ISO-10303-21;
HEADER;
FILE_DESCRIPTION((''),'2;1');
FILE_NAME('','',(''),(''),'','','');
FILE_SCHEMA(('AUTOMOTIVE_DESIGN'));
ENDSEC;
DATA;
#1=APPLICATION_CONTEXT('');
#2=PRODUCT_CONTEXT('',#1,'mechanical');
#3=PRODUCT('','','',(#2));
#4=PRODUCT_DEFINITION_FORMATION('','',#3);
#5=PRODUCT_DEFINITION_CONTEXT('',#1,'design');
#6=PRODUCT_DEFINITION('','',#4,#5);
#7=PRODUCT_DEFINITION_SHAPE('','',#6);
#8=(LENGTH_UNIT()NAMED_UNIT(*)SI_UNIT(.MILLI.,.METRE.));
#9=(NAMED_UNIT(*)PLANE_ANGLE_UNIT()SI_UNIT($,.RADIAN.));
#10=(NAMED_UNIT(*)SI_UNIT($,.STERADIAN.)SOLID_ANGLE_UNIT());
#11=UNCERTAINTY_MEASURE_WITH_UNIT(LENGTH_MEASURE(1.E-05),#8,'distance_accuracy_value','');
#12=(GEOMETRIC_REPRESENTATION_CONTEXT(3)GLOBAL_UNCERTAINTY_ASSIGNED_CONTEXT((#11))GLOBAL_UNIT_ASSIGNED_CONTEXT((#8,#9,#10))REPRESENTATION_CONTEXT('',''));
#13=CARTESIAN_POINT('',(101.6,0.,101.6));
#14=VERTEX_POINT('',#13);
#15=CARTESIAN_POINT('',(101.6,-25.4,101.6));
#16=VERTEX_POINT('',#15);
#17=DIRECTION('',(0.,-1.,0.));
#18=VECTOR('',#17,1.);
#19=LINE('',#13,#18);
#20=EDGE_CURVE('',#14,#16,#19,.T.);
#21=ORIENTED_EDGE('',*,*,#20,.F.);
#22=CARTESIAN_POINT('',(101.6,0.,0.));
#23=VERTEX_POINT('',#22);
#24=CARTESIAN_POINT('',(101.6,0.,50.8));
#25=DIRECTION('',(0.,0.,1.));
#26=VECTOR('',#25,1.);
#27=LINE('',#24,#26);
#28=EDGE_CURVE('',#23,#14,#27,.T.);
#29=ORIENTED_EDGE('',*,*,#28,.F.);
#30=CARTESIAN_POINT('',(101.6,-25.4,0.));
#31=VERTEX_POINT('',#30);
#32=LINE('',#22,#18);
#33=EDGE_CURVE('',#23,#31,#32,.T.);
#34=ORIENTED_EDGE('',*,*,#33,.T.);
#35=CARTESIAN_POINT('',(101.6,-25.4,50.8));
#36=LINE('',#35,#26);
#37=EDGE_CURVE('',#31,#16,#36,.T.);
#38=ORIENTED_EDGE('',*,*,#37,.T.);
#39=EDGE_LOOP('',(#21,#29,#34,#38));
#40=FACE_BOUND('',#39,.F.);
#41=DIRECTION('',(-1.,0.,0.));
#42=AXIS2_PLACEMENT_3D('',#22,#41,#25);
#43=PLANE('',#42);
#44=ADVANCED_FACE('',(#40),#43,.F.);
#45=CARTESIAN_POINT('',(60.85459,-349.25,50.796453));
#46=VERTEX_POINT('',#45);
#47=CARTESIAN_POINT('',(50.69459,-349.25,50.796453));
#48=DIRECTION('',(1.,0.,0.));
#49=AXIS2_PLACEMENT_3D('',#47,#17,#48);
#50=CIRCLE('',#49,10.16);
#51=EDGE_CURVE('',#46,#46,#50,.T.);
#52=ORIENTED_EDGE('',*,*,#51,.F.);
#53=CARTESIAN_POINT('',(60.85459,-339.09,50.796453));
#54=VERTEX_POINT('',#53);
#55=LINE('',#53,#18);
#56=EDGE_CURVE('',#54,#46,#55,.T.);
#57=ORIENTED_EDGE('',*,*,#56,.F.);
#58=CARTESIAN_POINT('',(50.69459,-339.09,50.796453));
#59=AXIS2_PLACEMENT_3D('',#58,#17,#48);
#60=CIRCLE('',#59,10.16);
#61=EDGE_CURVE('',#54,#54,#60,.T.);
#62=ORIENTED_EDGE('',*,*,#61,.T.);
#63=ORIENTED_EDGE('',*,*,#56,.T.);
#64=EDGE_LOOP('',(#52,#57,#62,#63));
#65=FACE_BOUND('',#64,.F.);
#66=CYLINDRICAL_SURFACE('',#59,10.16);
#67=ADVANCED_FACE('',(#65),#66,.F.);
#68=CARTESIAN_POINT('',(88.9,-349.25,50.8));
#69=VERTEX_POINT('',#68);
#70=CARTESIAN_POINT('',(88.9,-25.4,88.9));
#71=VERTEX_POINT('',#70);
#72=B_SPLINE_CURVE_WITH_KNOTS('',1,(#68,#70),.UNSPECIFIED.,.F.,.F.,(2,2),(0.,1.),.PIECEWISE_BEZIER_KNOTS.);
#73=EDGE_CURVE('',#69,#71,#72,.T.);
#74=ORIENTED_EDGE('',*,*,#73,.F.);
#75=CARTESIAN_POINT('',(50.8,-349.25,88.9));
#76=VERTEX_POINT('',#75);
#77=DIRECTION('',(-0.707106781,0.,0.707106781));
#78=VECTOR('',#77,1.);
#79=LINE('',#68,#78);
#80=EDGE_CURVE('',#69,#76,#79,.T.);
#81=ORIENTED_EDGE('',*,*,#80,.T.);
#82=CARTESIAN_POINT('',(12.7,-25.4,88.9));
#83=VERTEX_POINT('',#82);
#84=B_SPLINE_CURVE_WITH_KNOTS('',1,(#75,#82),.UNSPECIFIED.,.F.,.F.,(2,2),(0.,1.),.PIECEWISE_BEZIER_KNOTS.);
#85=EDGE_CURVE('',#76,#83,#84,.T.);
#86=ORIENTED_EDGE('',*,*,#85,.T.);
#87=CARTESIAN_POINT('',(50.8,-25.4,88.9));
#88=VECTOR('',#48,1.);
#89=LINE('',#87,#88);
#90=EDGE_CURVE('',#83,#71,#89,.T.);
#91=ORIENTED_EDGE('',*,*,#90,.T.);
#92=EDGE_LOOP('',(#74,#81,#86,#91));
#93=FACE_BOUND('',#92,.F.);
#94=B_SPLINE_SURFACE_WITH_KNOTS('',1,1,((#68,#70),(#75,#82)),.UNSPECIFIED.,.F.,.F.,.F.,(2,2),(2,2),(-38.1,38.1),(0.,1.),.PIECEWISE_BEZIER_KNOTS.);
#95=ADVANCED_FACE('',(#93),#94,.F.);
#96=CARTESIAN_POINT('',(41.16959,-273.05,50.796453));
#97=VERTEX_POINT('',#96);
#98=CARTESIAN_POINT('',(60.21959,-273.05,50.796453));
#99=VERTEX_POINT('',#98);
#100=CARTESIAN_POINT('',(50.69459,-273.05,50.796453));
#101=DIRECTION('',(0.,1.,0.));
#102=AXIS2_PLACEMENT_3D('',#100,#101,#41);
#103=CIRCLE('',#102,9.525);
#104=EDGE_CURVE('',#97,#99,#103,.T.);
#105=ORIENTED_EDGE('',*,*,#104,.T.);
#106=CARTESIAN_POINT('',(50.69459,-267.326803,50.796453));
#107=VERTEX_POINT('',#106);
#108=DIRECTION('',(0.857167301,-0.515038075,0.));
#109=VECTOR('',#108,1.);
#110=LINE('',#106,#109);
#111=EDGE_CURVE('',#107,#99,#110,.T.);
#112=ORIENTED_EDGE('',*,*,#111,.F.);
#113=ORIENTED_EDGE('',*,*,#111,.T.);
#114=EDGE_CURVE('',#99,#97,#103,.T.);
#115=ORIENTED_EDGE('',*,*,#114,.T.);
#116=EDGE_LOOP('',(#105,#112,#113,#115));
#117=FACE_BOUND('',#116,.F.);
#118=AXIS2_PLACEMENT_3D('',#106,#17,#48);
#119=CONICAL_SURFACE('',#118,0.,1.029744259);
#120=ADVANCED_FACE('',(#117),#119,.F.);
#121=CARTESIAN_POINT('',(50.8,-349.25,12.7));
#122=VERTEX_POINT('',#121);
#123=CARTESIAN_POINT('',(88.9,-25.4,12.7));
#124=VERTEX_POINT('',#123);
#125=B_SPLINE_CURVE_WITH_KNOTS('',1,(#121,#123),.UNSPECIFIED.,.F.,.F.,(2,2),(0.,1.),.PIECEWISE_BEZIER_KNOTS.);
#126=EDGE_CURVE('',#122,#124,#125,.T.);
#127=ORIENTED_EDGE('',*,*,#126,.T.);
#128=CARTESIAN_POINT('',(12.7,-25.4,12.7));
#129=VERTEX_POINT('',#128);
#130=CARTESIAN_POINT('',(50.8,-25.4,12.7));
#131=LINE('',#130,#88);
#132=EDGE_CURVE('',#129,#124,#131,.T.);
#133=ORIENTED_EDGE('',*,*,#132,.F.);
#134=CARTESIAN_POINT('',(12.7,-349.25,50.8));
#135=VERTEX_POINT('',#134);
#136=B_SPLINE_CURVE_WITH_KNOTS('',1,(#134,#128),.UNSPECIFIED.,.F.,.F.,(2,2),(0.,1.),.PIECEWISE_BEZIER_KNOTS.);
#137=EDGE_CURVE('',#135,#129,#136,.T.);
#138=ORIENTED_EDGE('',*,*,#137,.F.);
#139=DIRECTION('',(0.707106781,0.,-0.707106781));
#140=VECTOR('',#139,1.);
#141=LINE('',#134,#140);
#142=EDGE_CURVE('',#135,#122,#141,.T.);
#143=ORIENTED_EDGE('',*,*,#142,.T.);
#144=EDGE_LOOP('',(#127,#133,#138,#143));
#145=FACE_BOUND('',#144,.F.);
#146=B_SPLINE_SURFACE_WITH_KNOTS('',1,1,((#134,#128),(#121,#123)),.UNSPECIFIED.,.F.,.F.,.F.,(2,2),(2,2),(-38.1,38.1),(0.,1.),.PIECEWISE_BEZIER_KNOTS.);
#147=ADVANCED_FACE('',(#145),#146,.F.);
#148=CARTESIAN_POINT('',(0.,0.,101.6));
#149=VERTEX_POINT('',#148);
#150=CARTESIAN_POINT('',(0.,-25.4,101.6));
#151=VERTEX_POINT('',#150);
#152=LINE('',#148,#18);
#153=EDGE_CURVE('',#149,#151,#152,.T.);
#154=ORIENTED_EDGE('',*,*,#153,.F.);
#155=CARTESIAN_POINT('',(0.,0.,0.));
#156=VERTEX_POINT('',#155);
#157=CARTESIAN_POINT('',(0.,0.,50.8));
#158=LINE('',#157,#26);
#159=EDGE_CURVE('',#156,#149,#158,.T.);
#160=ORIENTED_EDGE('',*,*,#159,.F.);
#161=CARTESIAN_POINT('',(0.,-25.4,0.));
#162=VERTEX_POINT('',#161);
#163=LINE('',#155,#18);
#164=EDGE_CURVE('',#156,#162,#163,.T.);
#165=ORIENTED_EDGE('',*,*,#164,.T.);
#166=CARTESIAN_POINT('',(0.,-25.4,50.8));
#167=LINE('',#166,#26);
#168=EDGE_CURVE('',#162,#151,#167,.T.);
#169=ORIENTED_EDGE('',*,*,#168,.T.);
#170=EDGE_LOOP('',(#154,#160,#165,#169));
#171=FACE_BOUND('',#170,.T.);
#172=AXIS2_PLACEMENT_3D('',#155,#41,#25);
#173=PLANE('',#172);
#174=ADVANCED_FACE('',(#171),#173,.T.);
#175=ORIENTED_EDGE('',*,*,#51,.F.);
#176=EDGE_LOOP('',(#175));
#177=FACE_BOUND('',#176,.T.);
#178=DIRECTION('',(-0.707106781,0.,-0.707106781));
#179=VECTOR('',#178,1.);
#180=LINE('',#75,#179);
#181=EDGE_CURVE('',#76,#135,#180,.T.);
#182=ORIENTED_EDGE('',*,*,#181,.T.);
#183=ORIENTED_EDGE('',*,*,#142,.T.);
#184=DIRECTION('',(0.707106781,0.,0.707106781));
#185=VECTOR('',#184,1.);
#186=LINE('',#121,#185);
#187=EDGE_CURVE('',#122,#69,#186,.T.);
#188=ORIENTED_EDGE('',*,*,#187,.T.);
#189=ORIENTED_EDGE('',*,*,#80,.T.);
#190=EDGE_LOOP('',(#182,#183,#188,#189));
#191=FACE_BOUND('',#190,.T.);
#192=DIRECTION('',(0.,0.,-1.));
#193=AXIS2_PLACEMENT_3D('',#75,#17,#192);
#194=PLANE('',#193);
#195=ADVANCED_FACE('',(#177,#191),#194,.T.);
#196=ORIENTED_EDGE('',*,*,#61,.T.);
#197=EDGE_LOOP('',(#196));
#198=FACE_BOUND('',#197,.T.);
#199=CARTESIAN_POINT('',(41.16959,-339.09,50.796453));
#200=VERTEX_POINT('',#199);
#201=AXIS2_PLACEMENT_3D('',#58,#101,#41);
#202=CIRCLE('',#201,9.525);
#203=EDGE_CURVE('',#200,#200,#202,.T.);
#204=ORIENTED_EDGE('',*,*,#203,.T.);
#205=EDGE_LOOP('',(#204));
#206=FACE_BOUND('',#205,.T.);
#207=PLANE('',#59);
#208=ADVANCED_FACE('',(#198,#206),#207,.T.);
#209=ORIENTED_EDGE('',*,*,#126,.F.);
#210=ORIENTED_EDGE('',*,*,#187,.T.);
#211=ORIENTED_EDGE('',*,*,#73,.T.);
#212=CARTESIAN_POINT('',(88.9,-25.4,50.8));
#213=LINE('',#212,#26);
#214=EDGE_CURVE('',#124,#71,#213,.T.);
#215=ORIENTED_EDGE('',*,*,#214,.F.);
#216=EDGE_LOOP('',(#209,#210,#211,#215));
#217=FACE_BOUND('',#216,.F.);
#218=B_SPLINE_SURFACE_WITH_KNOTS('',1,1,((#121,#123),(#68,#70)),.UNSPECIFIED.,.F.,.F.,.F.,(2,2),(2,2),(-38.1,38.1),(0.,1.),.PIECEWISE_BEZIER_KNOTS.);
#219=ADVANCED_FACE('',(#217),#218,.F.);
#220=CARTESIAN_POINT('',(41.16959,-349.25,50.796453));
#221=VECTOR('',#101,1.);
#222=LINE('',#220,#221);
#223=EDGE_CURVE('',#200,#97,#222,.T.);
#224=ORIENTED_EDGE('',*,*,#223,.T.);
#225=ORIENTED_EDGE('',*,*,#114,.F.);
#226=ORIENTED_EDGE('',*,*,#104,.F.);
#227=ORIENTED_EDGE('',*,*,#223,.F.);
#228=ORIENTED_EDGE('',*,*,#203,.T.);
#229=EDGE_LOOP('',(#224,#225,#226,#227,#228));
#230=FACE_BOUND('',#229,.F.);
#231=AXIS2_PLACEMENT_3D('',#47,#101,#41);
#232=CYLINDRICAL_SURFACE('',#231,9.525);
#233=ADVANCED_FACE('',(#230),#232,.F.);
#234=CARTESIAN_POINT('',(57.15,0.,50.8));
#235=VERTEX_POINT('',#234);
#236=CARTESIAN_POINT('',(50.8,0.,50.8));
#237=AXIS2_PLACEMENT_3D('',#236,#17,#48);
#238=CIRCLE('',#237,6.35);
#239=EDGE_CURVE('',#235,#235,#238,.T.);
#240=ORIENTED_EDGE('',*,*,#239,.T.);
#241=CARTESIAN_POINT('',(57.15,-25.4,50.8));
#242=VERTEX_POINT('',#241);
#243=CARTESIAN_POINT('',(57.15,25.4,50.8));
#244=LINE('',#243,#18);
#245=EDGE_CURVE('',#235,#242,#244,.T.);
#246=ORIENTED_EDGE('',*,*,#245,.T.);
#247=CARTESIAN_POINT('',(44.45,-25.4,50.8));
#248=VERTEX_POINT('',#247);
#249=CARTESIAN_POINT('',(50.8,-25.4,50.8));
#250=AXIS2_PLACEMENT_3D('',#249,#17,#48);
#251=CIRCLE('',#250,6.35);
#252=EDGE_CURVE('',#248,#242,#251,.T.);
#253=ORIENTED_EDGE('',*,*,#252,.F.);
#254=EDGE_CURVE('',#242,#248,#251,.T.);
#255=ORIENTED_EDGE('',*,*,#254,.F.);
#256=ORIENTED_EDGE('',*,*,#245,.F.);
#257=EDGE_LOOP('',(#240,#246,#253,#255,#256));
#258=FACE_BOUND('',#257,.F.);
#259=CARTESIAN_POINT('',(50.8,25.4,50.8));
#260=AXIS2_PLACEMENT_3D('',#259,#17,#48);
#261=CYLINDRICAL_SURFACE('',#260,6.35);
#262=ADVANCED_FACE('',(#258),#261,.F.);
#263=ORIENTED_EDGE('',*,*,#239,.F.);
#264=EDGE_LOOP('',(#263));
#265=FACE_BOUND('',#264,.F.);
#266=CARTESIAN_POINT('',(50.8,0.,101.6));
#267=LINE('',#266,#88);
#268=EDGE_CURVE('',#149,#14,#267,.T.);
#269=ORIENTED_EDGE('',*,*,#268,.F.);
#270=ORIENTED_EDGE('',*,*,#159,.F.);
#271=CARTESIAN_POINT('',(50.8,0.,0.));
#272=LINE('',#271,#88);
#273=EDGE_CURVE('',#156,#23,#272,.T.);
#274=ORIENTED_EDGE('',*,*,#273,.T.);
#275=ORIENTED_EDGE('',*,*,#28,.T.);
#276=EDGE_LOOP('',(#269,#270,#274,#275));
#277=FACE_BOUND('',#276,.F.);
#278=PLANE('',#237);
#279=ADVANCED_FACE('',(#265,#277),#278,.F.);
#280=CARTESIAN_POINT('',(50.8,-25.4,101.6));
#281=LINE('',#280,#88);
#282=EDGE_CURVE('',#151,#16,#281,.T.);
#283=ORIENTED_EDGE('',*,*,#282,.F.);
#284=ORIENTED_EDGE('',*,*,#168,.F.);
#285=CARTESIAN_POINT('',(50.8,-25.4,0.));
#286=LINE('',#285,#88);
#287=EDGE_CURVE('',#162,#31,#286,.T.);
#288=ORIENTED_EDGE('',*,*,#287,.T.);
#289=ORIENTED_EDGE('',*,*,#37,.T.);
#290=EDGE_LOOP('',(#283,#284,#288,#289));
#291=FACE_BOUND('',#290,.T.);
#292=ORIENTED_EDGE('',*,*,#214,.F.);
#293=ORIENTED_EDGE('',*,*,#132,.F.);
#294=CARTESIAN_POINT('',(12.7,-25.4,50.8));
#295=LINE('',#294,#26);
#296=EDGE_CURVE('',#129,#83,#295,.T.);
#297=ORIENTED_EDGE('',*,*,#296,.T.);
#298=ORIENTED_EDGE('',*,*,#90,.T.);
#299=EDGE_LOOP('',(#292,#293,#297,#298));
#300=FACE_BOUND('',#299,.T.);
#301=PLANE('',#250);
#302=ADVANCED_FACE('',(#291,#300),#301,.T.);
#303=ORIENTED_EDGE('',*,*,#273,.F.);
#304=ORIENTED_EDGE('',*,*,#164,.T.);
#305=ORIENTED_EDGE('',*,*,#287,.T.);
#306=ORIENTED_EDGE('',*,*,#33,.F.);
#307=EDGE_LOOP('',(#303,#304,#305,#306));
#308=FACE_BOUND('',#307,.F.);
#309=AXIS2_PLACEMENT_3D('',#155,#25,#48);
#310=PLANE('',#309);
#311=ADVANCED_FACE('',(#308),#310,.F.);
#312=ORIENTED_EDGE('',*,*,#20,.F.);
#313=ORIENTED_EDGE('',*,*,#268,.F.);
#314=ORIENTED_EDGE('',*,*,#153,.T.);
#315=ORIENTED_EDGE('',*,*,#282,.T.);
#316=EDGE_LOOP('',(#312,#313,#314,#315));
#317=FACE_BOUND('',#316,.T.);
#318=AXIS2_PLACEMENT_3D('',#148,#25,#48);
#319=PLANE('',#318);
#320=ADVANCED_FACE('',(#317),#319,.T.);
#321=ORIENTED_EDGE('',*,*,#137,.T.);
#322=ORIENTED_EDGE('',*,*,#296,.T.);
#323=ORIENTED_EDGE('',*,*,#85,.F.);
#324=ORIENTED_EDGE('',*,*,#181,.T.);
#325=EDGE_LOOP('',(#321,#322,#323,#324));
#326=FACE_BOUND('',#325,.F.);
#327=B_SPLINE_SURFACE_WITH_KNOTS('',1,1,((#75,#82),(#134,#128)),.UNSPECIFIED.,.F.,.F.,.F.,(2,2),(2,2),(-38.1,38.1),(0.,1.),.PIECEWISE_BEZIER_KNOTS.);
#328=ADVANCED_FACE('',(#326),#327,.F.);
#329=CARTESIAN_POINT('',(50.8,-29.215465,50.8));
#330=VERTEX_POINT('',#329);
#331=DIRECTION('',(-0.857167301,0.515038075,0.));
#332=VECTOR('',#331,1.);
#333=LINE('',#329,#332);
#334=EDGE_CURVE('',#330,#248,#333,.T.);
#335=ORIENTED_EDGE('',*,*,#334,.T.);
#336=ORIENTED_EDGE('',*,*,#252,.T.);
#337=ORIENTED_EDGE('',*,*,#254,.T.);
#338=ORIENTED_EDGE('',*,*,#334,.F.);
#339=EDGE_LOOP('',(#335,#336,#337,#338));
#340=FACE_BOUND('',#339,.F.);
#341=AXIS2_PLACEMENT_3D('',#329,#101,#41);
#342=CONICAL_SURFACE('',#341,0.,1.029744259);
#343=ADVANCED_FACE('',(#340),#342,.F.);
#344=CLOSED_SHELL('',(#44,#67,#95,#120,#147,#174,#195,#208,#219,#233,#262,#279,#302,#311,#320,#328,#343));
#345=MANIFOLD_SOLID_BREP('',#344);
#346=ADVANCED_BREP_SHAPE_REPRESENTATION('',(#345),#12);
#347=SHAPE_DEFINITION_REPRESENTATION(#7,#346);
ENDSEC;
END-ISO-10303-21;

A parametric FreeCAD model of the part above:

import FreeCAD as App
import Part
import Sketcher

V = App.Vector
Q = App.Units.Quantity


def add_polygon(sketch, points):
    """Adds a closed chain of lines whose ends are joined by coincident constraints."""
    first, n = sketch.GeometryCount, len(points)
    for a, b in zip(points, points[1:] + points[:1]):
        sketch.addGeometry(Part.LineSegment(App.Vector(*a, 0), App.Vector(*b, 0)), False)
    for i in range(n):
        sketch.addConstraint(Sketcher.Constraint("Coincident", first + i, 2, first + (i + 1) % n, 1))

doc = App.newDocument("Part")
body = doc.addObject("PartDesign::Body", "Body")

sketch1 = body.newObject("Sketcher::SketchObject", "Sketch")
sketch1.AttachmentSupport = (doc.getObject("XZ_Plane"), [""])
sketch1.MapMode = "FlatFace"
add_polygon(sketch1, [(0, 102), (0, 0), (102, 0), (102, 102)])
sketch1.addConstraint(Sketcher.Constraint("Vertical", 0))
sketch1.addConstraint(Sketcher.Constraint("Horizontal", 1))
sketch1.addConstraint(Sketcher.Constraint("Vertical", 2))
sketch1.addConstraint(Sketcher.Constraint("Horizontal", 3))
sketch1.addConstraint(Sketcher.Constraint("Coincident", 0, 2, -1, 1))
sketch1.addConstraint(Sketcher.Constraint("Equal", 3, 0))
sketch1.addConstraint(Sketcher.Constraint("DistanceX", 1, 1, 1, 2, Q("4 in")))
pad1 = body.newObject("PartDesign::Pad", "Pad")
pad1.Profile = sketch1
pad1.Length = Q("1 in")

sketch2 = body.newObject("Sketcher::SketchObject", "Sketch001")
sketch2.AttachmentSupport = (doc.getObject("XZ_Plane"), [""])
sketch2.MapMode = "FlatFace"
sketch2.AttachmentOffset = App.Placement(V(0, 0, 13.75 * 25.4), App.Rotation())
add_polygon(sketch2, [(51, 89), (13, 51), (51, 13), (89, 51)])
sketch2.addConstraint(Sketcher.Constraint("Perpendicular", 0, 1))
sketch2.addConstraint(Sketcher.Constraint("Perpendicular", 1, 2))
sketch2.addConstraint(Sketcher.Constraint("Perpendicular", 2, 3))
sketch2.addConstraint(Sketcher.Constraint("Horizontal", 0, 2, 2, 2))
sketch2.addConstraint(Sketcher.Constraint("Vertical", 1, 2, 3, 2))
sketch2.addConstraint(Sketcher.Constraint("DistanceY", -1, 1, 0, 2, Q("2 in")))
sketch2.addConstraint(Sketcher.Constraint("DistanceX", -1, 1, 1, 2, Q("2 in")))
sketch2.addConstraint(Sketcher.Constraint("DistanceX", 0, 2, 2, 2, Q("3 in")))

sketch3 = body.newObject("Sketcher::SketchObject", "Sketch002")
sketch3.AttachmentSupport = (doc.getObject("XZ_Plane"), [""])
sketch3.MapMode = "FlatFace"
sketch3.AttachmentOffset = App.Placement(V(0, 0, 1 * 25.4), App.Rotation())
add_polygon(sketch3, [(13, 89), (13, 13), (89, 13), (89, 89)])
sketch3.addConstraint(Sketcher.Constraint("Vertical", 0))
sketch3.addConstraint(Sketcher.Constraint("Horizontal", 1))
sketch3.addConstraint(Sketcher.Constraint("Vertical", 2))
sketch3.addConstraint(Sketcher.Constraint("Horizontal", 3))
sketch3.addConstraint(Sketcher.Constraint("Equal", 3, 0))
sketch3.addConstraint(Sketcher.Constraint("DistanceX", 1, 1, 1, 2, Q("3 in")))
sketch3.addConstraint(Sketcher.Constraint("DistanceX", -1, 1, 0, 2, Q("0.5 in")))
sketch3.addConstraint(Sketcher.Constraint("DistanceY", -1, 1, 0, 2, Q("0.5 in")))

additiveloft = body.newObject("PartDesign::AdditiveLoft", "AdditiveLoft")
additiveloft.Profile = sketch2
additiveloft.Sections = [sketch3]

sketch4 = body.newObject("Sketcher::SketchObject", "Sketch003")
sketch4.AttachmentSupport = (doc.getObject("XZ_Plane"), [""])
sketch4.MapMode = "FlatFace"
sketch4.addGeometry(Part.Circle(V(51, 51, 0), V(0, 0, 1), 6), False)
sketch4.addConstraint(Sketcher.Constraint("Diameter", 0, Q("0.5 in")))
sketch4.addConstraint(Sketcher.Constraint("DistanceX", -1, 1, 0, 3, Q("2 in")))
sketch4.addConstraint(Sketcher.Constraint("DistanceY", -1, 1, 0, 3, Q("2 in")))
doc.recompute()
hole = body.newObject("PartDesign::Hole", "Hole")
hole.Profile = sketch4
hole.ThreadType = "None"
hole.Diameter = Q("0.5 in")
hole.DepthType = "Dimension"
hole.Depth = Q("1 in")
hole.DrillPoint = "Angled"
hole.DrillPointAngle = 118
hole.Reversed = True

sketch5 = body.newObject("Sketcher::SketchObject", "Sketch004")
sketch5.AttachmentSupport = (doc.getObject("XZ_Plane"), [""])
sketch5.MapMode = "FlatFace"
sketch5.AttachmentOffset = App.Placement(V(0, 0, 13.75 * 25.4), App.Rotation())
sketch5.addGeometry(Part.Circle(V(51, 51, 0), V(0, 0, 1), 10), False)
sketch5.addConstraint(Sketcher.Constraint("Diameter", 0, Q("0.75 in")))
sketch5.addConstraint(Sketcher.Constraint("DistanceX", -1, 1, 0, 3, 50.69459))
sketch5.addConstraint(Sketcher.Constraint("DistanceY", -1, 1, 0, 3, 50.796453))
doc.recompute()
hole2 = body.newObject("PartDesign::Hole", "Hole001")
hole2.Profile = sketch5
hole2.ThreadType = "None"
hole2.Diameter = Q("0.75 in")
hole2.DepthType = "Dimension"
hole2.Depth = Q("3 in")
hole2.DrillPoint = "Angled"
hole2.DrillPointAngle = 118
hole2.HoleCutType = "Counterbore"
hole2.HoleCutDiameter = Q("0.8 in")
hole2.HoleCutDepth = Q("0.4 in")

doc.recompute()
